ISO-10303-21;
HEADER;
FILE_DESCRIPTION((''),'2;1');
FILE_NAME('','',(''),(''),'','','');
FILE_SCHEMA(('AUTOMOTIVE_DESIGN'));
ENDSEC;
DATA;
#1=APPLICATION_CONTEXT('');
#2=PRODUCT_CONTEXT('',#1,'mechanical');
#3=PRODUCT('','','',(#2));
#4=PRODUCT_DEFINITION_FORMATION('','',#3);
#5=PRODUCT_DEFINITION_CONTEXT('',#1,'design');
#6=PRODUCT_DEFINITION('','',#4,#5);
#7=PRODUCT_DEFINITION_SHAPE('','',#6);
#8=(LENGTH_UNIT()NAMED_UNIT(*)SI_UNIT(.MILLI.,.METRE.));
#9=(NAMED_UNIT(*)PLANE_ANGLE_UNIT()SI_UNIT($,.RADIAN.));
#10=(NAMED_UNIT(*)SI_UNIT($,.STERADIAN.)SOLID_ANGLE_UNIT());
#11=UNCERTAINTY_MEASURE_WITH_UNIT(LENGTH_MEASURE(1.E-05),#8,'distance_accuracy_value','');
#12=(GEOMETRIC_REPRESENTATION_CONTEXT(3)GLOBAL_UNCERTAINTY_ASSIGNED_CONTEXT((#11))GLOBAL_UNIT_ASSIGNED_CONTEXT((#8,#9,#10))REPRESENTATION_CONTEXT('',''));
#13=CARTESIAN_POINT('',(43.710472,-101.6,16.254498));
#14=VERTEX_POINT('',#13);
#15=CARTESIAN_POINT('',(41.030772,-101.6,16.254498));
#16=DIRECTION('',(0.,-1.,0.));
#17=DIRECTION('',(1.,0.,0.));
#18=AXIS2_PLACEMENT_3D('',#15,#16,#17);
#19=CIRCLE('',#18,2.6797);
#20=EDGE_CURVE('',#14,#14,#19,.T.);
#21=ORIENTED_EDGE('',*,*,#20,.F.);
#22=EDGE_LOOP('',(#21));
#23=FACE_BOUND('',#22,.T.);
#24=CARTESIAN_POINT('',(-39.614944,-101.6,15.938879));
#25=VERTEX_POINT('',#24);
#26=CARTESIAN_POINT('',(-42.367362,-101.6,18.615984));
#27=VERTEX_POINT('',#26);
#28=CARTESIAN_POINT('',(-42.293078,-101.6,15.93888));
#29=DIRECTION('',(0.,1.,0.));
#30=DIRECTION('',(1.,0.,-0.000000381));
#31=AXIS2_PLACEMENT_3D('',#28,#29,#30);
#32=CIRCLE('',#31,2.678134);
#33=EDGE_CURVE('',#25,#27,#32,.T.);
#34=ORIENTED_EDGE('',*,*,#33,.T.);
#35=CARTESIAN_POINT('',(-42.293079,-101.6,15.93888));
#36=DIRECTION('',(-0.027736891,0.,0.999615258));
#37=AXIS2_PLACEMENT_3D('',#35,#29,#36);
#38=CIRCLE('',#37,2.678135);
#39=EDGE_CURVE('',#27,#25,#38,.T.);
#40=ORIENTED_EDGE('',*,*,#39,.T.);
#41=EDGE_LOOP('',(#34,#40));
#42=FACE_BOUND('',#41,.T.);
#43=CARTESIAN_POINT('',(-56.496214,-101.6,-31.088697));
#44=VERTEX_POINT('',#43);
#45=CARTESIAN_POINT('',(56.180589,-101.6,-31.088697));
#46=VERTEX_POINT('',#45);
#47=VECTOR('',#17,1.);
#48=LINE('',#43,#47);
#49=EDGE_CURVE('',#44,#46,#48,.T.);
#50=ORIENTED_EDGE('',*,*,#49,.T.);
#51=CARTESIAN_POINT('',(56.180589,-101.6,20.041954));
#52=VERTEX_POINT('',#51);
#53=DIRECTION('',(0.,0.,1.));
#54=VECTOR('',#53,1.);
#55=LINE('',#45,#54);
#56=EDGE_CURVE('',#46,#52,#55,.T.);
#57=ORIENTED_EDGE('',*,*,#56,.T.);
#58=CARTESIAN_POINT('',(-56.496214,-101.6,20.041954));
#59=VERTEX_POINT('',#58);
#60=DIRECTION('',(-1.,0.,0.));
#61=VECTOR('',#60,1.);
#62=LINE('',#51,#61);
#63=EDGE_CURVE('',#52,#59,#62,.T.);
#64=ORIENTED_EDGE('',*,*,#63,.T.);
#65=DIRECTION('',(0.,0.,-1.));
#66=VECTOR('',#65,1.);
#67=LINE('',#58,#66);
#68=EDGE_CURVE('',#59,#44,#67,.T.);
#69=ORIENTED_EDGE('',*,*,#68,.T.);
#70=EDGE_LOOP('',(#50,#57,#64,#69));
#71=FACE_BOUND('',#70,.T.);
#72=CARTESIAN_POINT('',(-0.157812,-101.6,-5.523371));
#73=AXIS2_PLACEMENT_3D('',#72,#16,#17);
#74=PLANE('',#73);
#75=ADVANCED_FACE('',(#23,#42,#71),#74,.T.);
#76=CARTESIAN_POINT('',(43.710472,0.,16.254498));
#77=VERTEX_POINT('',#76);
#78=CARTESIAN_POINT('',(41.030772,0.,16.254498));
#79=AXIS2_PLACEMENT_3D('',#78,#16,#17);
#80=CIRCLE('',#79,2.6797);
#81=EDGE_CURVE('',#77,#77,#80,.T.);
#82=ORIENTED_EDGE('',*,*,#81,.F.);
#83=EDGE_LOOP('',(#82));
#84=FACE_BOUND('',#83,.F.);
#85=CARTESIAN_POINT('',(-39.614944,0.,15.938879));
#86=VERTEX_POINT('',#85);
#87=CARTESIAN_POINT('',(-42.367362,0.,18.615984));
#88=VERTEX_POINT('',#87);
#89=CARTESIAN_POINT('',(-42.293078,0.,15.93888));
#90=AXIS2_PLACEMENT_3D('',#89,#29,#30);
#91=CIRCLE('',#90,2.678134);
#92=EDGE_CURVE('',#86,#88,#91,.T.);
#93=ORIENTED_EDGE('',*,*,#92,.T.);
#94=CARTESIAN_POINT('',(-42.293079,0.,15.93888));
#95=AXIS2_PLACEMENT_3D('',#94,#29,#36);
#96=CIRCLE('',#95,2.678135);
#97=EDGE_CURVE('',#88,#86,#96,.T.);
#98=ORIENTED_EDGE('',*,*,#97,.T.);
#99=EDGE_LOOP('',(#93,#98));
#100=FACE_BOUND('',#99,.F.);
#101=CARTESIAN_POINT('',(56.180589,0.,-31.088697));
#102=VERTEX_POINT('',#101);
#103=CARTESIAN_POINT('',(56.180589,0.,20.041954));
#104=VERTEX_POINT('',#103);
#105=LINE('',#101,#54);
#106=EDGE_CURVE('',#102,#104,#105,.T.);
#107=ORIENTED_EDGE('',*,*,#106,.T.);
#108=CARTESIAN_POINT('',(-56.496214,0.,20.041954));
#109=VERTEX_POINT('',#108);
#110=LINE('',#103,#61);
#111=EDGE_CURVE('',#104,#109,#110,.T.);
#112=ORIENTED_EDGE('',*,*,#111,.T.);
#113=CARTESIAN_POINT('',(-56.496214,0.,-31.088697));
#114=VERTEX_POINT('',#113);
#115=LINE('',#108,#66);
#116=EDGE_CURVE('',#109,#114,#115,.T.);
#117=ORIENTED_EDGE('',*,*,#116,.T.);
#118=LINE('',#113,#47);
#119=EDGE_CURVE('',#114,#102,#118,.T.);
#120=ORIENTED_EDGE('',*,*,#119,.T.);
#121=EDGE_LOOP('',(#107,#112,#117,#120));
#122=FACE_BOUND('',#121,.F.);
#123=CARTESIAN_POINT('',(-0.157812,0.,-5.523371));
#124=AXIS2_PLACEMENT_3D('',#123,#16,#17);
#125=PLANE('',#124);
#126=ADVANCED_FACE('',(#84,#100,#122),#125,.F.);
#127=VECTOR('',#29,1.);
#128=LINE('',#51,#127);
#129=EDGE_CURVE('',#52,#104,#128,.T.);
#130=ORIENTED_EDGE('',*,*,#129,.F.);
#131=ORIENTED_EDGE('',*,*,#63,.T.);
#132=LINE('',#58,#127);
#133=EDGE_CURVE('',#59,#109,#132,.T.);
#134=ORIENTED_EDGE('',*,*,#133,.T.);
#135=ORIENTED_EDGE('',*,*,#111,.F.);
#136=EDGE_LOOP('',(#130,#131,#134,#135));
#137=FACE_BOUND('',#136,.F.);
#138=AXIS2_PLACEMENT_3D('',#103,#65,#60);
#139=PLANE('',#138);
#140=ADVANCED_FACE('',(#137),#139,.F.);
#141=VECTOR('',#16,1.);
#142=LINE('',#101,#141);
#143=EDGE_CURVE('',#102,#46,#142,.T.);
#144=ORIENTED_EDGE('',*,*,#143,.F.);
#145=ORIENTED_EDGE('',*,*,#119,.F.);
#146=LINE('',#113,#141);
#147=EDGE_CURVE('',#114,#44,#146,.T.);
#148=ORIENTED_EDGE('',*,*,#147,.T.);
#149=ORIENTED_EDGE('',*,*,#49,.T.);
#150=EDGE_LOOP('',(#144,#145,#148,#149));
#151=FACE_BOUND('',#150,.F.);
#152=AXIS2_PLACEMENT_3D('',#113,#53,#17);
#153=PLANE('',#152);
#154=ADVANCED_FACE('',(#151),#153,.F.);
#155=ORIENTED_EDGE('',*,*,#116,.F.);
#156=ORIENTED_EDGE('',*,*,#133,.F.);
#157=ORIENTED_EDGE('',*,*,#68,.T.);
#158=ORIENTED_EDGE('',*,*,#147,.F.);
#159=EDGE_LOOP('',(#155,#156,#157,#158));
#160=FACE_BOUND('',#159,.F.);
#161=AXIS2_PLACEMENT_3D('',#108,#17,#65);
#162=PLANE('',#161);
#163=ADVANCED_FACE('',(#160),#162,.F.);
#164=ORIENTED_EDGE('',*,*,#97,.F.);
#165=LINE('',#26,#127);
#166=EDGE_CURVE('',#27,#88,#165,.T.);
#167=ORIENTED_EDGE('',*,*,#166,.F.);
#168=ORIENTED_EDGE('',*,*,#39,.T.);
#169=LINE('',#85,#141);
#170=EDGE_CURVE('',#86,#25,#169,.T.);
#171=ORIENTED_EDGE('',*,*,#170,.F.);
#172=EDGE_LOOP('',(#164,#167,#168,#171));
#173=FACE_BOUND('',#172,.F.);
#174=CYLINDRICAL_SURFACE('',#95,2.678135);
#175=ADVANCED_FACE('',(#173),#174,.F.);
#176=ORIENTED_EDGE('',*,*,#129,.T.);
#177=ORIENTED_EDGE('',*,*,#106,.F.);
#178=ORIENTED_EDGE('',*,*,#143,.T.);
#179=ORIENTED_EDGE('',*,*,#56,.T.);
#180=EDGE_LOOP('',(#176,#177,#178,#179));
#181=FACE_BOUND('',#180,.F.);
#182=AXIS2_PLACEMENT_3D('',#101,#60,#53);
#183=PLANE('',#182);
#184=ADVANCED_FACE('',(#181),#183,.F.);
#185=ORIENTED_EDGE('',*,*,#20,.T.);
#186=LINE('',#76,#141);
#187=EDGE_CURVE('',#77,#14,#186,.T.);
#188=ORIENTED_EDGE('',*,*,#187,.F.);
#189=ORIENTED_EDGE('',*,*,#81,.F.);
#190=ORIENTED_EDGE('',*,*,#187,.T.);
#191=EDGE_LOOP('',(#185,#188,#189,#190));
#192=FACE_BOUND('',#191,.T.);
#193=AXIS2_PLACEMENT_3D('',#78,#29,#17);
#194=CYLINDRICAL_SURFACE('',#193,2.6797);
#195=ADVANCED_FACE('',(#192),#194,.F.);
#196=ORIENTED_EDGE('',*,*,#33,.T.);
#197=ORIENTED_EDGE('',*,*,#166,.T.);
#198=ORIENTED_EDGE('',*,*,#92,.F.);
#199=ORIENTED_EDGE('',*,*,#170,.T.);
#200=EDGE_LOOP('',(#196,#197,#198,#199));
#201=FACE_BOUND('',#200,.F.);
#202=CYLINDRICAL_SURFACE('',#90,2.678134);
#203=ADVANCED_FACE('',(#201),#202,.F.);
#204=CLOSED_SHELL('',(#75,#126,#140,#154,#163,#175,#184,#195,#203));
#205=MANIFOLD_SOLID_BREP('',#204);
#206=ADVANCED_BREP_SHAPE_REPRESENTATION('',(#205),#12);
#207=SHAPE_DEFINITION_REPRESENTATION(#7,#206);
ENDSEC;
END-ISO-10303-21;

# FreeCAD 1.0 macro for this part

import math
import FreeCAD as App
import Part
import Sketcher

V = App.Vector
Q = App.Units.Quantity

doc = App.newDocument("Part")
params = doc.addObject("Spreadsheet::Sheet", "Params")
for row, (alias, value) in enumerate([
    ("sketch1_diameter", "0.211 in"),
    ("pad1_length", "0.125 in"),
    ("sketch2_diameter", "0.211 in"),
    ("pad2_length", "4 in"),
], start=1):
    params.set(f"A{row}", alias)
    params.set(f"B{row}", "=" + value)
    params.setAlias(f"B{row}", alias)

body = doc.addObject("PartDesign::Body", "Body")

sketch1 = body.newObject("Sketcher::SketchObject", "Sketch")
sketch1.AttachmentSupport = (doc.getObject("XZ_Plane"), [""])
sketch1.MapMode = "FlatFace"
sketch1.addGeometry([
    Part.LineSegment(V(-56.496214, 20.041954, 0), V(-56.496214, -31.088697, 0)),
    Part.LineSegment(V(-56.496214, -31.088697, 0), V(56.180589, -31.088697, 0)),
    Part.LineSegment(V(56.180589, -31.088697, 0), V(56.180589, 20.041954, 0)),
    Part.LineSegment(V(56.180589, 20.041954, 0), V(-56.496214, 20.041954, 0)),
    Part.ArcOfCircle(Part.Circle(V(-42.293079, 15.93888, 0), V(0, 0, 1), 2.678135), math.radians(-0.000011), math.radians(91.589411)),
    Part.ArcOfCircle(Part.Circle(V(-42.293078, 15.93888, 0), V(0, 0, 1), 2.678134), math.radians(91.589421), math.radians(359.999978)),
    Part.Circle(V(41.030772, 16.254498, 0), V(0, 0, 1), 2.6797),
], False)
sketch1.addConstraint([
    Sketcher.Constraint("Coincident", 0, 2, 1, 1),
    Sketcher.Constraint("Coincident", 1, 2, 2, 1),
    Sketcher.Constraint("Coincident", 2, 2, 3, 1),
    Sketcher.Constraint("Coincident", 3, 2, 0, 1),
    Sketcher.Constraint("Tangent", 4, 1, 5, 2),
    Sketcher.Constraint("Coincident", 5, 1, 4, 2),
    Sketcher.Constraint("Vertical", 0),
    Sketcher.Constraint("Horizontal", 1),
    Sketcher.Constraint("Vertical", 2),
    Sketcher.Constraint("Horizontal", 3),
    Sketcher.Constraint("Horizontal", 5, 3, 4, 1),
    Sketcher.Constraint("Diameter", 6, Q("0.211 in")),
    Sketcher.Constraint("Radius", 4, 2.678135),
    Sketcher.Constraint("DistanceY", 0, 2, 0, 1, 51.130651),
    Sketcher.Constraint("DistanceY", -1, 1, 6, 3, 16.254498),
    Sketcher.Constraint("DistanceX", 1, 1, 1, 2, 112.676803),
    Sketcher.Constraint("DistanceX", 4, 3, -1, 1, 42.293079),
    Sketcher.Constraint("DistanceY", -1, 1, 4, 3, 15.93888),
    Sketcher.Constraint("DistanceX", -1, 1, 1, 2, 56.180589),
    Sketcher.Constraint("DistanceX", 5, 1, -1, 1, 42.367362),
    Sketcher.Constraint("DistanceX", 5, 3, 6, 3, 83.32385),
    Sketcher.Constraint("DistanceY", 5, 1, 3, 2, 1.42597),
])
sketch1.setExpression("Constraints[11]", "Params.sketch1_diameter")
pad1 = body.newObject("PartDesign::Pad", "Pad")
pad1.Profile = sketch1
pad1.setExpression("Length", "Params.pad1_length")

sketch2 = body.newObject("Sketcher::SketchObject", "Sketch001")
sketch2.AttachmentSupport = (doc.getObject("XZ_Plane"), [""])
sketch2.MapMode = "FlatFace"
sketch2.addGeometry([
    Part.LineSegment(V(-56.496214, 20.041954, 0), V(-56.496214, -31.088697, 0)),
    Part.LineSegment(V(-56.496214, -31.088697, 0), V(56.180589, -31.088697, 0)),
    Part.LineSegment(V(56.180589, -31.088697, 0), V(56.180589, 20.041954, 0)),
    Part.LineSegment(V(56.180589, 20.041954, 0), V(-56.496214, 20.041954, 0)),
    Part.ArcOfCircle(Part.Circle(V(-42.293079, 15.93888, 0), V(0, 0, 1), 2.678135), math.radians(-0.000011), math.radians(91.589411)),
    Part.ArcOfCircle(Part.Circle(V(-42.293078, 15.93888, 0), V(0, 0, 1), 2.678134), math.radians(91.589421), math.radians(359.999978)),
    Part.Circle(V(41.030772, 16.254498, 0), V(0, 0, 1), 2.6797),
], False)
sketch2.addConstraint([
    Sketcher.Constraint("Coincident", 0, 2, 1, 1),
    Sketcher.Constraint("Coincident", 1, 2, 2, 1),
    Sketcher.Constraint("Coincident", 2, 2, 3, 1),
    Sketcher.Constraint("Coincident", 3, 2, 0, 1),
    Sketcher.Constraint("Tangent", 4, 1, 5, 2),
    Sketcher.Constraint("Coincident", 5, 1, 4, 2),
    Sketcher.Constraint("Vertical", 0),
    Sketcher.Constraint("Horizontal", 1),
    Sketcher.Constraint("Vertical", 2),
    Sketcher.Constraint("Horizontal", 3),
    Sketcher.Constraint("Horizontal", 5, 3, 4, 1),
    Sketcher.Constraint("Diameter", 6, Q("0.211 in")),
    Sketcher.Constraint("Radius", 4, 2.678135),
    Sketcher.Constraint("DistanceY", 0, 2, 0, 1, 51.130651),
    Sketcher.Constraint("DistanceY", -1, 1, 6, 3, 16.254498),
    Sketcher.Constraint("DistanceX", 1, 1, 1, 2, 112.676803),
    Sketcher.Constraint("DistanceX", 4, 3, -1, 1, 42.293079),
    Sketcher.Constraint("DistanceY", -1, 1, 4, 3, 15.93888),
    Sketcher.Constraint("DistanceX", -1, 1, 1, 2, 56.180589),
    Sketcher.Constraint("DistanceX", 5, 1, -1, 1, 42.367362),
    Sketcher.Constraint("DistanceX", 5, 3, 6, 3, 83.32385),
    Sketcher.Constraint("DistanceY", 5, 1, 3, 2, 1.42597),
])
sketch2.setExpression("Constraints[11]", "Params.sketch2_diameter")
pad2 = body.newObject("PartDesign::Pad", "Pad001")
pad2.Profile = sketch2
pad2.setExpression("Length", "Params.pad2_length")

doc.recompute()
